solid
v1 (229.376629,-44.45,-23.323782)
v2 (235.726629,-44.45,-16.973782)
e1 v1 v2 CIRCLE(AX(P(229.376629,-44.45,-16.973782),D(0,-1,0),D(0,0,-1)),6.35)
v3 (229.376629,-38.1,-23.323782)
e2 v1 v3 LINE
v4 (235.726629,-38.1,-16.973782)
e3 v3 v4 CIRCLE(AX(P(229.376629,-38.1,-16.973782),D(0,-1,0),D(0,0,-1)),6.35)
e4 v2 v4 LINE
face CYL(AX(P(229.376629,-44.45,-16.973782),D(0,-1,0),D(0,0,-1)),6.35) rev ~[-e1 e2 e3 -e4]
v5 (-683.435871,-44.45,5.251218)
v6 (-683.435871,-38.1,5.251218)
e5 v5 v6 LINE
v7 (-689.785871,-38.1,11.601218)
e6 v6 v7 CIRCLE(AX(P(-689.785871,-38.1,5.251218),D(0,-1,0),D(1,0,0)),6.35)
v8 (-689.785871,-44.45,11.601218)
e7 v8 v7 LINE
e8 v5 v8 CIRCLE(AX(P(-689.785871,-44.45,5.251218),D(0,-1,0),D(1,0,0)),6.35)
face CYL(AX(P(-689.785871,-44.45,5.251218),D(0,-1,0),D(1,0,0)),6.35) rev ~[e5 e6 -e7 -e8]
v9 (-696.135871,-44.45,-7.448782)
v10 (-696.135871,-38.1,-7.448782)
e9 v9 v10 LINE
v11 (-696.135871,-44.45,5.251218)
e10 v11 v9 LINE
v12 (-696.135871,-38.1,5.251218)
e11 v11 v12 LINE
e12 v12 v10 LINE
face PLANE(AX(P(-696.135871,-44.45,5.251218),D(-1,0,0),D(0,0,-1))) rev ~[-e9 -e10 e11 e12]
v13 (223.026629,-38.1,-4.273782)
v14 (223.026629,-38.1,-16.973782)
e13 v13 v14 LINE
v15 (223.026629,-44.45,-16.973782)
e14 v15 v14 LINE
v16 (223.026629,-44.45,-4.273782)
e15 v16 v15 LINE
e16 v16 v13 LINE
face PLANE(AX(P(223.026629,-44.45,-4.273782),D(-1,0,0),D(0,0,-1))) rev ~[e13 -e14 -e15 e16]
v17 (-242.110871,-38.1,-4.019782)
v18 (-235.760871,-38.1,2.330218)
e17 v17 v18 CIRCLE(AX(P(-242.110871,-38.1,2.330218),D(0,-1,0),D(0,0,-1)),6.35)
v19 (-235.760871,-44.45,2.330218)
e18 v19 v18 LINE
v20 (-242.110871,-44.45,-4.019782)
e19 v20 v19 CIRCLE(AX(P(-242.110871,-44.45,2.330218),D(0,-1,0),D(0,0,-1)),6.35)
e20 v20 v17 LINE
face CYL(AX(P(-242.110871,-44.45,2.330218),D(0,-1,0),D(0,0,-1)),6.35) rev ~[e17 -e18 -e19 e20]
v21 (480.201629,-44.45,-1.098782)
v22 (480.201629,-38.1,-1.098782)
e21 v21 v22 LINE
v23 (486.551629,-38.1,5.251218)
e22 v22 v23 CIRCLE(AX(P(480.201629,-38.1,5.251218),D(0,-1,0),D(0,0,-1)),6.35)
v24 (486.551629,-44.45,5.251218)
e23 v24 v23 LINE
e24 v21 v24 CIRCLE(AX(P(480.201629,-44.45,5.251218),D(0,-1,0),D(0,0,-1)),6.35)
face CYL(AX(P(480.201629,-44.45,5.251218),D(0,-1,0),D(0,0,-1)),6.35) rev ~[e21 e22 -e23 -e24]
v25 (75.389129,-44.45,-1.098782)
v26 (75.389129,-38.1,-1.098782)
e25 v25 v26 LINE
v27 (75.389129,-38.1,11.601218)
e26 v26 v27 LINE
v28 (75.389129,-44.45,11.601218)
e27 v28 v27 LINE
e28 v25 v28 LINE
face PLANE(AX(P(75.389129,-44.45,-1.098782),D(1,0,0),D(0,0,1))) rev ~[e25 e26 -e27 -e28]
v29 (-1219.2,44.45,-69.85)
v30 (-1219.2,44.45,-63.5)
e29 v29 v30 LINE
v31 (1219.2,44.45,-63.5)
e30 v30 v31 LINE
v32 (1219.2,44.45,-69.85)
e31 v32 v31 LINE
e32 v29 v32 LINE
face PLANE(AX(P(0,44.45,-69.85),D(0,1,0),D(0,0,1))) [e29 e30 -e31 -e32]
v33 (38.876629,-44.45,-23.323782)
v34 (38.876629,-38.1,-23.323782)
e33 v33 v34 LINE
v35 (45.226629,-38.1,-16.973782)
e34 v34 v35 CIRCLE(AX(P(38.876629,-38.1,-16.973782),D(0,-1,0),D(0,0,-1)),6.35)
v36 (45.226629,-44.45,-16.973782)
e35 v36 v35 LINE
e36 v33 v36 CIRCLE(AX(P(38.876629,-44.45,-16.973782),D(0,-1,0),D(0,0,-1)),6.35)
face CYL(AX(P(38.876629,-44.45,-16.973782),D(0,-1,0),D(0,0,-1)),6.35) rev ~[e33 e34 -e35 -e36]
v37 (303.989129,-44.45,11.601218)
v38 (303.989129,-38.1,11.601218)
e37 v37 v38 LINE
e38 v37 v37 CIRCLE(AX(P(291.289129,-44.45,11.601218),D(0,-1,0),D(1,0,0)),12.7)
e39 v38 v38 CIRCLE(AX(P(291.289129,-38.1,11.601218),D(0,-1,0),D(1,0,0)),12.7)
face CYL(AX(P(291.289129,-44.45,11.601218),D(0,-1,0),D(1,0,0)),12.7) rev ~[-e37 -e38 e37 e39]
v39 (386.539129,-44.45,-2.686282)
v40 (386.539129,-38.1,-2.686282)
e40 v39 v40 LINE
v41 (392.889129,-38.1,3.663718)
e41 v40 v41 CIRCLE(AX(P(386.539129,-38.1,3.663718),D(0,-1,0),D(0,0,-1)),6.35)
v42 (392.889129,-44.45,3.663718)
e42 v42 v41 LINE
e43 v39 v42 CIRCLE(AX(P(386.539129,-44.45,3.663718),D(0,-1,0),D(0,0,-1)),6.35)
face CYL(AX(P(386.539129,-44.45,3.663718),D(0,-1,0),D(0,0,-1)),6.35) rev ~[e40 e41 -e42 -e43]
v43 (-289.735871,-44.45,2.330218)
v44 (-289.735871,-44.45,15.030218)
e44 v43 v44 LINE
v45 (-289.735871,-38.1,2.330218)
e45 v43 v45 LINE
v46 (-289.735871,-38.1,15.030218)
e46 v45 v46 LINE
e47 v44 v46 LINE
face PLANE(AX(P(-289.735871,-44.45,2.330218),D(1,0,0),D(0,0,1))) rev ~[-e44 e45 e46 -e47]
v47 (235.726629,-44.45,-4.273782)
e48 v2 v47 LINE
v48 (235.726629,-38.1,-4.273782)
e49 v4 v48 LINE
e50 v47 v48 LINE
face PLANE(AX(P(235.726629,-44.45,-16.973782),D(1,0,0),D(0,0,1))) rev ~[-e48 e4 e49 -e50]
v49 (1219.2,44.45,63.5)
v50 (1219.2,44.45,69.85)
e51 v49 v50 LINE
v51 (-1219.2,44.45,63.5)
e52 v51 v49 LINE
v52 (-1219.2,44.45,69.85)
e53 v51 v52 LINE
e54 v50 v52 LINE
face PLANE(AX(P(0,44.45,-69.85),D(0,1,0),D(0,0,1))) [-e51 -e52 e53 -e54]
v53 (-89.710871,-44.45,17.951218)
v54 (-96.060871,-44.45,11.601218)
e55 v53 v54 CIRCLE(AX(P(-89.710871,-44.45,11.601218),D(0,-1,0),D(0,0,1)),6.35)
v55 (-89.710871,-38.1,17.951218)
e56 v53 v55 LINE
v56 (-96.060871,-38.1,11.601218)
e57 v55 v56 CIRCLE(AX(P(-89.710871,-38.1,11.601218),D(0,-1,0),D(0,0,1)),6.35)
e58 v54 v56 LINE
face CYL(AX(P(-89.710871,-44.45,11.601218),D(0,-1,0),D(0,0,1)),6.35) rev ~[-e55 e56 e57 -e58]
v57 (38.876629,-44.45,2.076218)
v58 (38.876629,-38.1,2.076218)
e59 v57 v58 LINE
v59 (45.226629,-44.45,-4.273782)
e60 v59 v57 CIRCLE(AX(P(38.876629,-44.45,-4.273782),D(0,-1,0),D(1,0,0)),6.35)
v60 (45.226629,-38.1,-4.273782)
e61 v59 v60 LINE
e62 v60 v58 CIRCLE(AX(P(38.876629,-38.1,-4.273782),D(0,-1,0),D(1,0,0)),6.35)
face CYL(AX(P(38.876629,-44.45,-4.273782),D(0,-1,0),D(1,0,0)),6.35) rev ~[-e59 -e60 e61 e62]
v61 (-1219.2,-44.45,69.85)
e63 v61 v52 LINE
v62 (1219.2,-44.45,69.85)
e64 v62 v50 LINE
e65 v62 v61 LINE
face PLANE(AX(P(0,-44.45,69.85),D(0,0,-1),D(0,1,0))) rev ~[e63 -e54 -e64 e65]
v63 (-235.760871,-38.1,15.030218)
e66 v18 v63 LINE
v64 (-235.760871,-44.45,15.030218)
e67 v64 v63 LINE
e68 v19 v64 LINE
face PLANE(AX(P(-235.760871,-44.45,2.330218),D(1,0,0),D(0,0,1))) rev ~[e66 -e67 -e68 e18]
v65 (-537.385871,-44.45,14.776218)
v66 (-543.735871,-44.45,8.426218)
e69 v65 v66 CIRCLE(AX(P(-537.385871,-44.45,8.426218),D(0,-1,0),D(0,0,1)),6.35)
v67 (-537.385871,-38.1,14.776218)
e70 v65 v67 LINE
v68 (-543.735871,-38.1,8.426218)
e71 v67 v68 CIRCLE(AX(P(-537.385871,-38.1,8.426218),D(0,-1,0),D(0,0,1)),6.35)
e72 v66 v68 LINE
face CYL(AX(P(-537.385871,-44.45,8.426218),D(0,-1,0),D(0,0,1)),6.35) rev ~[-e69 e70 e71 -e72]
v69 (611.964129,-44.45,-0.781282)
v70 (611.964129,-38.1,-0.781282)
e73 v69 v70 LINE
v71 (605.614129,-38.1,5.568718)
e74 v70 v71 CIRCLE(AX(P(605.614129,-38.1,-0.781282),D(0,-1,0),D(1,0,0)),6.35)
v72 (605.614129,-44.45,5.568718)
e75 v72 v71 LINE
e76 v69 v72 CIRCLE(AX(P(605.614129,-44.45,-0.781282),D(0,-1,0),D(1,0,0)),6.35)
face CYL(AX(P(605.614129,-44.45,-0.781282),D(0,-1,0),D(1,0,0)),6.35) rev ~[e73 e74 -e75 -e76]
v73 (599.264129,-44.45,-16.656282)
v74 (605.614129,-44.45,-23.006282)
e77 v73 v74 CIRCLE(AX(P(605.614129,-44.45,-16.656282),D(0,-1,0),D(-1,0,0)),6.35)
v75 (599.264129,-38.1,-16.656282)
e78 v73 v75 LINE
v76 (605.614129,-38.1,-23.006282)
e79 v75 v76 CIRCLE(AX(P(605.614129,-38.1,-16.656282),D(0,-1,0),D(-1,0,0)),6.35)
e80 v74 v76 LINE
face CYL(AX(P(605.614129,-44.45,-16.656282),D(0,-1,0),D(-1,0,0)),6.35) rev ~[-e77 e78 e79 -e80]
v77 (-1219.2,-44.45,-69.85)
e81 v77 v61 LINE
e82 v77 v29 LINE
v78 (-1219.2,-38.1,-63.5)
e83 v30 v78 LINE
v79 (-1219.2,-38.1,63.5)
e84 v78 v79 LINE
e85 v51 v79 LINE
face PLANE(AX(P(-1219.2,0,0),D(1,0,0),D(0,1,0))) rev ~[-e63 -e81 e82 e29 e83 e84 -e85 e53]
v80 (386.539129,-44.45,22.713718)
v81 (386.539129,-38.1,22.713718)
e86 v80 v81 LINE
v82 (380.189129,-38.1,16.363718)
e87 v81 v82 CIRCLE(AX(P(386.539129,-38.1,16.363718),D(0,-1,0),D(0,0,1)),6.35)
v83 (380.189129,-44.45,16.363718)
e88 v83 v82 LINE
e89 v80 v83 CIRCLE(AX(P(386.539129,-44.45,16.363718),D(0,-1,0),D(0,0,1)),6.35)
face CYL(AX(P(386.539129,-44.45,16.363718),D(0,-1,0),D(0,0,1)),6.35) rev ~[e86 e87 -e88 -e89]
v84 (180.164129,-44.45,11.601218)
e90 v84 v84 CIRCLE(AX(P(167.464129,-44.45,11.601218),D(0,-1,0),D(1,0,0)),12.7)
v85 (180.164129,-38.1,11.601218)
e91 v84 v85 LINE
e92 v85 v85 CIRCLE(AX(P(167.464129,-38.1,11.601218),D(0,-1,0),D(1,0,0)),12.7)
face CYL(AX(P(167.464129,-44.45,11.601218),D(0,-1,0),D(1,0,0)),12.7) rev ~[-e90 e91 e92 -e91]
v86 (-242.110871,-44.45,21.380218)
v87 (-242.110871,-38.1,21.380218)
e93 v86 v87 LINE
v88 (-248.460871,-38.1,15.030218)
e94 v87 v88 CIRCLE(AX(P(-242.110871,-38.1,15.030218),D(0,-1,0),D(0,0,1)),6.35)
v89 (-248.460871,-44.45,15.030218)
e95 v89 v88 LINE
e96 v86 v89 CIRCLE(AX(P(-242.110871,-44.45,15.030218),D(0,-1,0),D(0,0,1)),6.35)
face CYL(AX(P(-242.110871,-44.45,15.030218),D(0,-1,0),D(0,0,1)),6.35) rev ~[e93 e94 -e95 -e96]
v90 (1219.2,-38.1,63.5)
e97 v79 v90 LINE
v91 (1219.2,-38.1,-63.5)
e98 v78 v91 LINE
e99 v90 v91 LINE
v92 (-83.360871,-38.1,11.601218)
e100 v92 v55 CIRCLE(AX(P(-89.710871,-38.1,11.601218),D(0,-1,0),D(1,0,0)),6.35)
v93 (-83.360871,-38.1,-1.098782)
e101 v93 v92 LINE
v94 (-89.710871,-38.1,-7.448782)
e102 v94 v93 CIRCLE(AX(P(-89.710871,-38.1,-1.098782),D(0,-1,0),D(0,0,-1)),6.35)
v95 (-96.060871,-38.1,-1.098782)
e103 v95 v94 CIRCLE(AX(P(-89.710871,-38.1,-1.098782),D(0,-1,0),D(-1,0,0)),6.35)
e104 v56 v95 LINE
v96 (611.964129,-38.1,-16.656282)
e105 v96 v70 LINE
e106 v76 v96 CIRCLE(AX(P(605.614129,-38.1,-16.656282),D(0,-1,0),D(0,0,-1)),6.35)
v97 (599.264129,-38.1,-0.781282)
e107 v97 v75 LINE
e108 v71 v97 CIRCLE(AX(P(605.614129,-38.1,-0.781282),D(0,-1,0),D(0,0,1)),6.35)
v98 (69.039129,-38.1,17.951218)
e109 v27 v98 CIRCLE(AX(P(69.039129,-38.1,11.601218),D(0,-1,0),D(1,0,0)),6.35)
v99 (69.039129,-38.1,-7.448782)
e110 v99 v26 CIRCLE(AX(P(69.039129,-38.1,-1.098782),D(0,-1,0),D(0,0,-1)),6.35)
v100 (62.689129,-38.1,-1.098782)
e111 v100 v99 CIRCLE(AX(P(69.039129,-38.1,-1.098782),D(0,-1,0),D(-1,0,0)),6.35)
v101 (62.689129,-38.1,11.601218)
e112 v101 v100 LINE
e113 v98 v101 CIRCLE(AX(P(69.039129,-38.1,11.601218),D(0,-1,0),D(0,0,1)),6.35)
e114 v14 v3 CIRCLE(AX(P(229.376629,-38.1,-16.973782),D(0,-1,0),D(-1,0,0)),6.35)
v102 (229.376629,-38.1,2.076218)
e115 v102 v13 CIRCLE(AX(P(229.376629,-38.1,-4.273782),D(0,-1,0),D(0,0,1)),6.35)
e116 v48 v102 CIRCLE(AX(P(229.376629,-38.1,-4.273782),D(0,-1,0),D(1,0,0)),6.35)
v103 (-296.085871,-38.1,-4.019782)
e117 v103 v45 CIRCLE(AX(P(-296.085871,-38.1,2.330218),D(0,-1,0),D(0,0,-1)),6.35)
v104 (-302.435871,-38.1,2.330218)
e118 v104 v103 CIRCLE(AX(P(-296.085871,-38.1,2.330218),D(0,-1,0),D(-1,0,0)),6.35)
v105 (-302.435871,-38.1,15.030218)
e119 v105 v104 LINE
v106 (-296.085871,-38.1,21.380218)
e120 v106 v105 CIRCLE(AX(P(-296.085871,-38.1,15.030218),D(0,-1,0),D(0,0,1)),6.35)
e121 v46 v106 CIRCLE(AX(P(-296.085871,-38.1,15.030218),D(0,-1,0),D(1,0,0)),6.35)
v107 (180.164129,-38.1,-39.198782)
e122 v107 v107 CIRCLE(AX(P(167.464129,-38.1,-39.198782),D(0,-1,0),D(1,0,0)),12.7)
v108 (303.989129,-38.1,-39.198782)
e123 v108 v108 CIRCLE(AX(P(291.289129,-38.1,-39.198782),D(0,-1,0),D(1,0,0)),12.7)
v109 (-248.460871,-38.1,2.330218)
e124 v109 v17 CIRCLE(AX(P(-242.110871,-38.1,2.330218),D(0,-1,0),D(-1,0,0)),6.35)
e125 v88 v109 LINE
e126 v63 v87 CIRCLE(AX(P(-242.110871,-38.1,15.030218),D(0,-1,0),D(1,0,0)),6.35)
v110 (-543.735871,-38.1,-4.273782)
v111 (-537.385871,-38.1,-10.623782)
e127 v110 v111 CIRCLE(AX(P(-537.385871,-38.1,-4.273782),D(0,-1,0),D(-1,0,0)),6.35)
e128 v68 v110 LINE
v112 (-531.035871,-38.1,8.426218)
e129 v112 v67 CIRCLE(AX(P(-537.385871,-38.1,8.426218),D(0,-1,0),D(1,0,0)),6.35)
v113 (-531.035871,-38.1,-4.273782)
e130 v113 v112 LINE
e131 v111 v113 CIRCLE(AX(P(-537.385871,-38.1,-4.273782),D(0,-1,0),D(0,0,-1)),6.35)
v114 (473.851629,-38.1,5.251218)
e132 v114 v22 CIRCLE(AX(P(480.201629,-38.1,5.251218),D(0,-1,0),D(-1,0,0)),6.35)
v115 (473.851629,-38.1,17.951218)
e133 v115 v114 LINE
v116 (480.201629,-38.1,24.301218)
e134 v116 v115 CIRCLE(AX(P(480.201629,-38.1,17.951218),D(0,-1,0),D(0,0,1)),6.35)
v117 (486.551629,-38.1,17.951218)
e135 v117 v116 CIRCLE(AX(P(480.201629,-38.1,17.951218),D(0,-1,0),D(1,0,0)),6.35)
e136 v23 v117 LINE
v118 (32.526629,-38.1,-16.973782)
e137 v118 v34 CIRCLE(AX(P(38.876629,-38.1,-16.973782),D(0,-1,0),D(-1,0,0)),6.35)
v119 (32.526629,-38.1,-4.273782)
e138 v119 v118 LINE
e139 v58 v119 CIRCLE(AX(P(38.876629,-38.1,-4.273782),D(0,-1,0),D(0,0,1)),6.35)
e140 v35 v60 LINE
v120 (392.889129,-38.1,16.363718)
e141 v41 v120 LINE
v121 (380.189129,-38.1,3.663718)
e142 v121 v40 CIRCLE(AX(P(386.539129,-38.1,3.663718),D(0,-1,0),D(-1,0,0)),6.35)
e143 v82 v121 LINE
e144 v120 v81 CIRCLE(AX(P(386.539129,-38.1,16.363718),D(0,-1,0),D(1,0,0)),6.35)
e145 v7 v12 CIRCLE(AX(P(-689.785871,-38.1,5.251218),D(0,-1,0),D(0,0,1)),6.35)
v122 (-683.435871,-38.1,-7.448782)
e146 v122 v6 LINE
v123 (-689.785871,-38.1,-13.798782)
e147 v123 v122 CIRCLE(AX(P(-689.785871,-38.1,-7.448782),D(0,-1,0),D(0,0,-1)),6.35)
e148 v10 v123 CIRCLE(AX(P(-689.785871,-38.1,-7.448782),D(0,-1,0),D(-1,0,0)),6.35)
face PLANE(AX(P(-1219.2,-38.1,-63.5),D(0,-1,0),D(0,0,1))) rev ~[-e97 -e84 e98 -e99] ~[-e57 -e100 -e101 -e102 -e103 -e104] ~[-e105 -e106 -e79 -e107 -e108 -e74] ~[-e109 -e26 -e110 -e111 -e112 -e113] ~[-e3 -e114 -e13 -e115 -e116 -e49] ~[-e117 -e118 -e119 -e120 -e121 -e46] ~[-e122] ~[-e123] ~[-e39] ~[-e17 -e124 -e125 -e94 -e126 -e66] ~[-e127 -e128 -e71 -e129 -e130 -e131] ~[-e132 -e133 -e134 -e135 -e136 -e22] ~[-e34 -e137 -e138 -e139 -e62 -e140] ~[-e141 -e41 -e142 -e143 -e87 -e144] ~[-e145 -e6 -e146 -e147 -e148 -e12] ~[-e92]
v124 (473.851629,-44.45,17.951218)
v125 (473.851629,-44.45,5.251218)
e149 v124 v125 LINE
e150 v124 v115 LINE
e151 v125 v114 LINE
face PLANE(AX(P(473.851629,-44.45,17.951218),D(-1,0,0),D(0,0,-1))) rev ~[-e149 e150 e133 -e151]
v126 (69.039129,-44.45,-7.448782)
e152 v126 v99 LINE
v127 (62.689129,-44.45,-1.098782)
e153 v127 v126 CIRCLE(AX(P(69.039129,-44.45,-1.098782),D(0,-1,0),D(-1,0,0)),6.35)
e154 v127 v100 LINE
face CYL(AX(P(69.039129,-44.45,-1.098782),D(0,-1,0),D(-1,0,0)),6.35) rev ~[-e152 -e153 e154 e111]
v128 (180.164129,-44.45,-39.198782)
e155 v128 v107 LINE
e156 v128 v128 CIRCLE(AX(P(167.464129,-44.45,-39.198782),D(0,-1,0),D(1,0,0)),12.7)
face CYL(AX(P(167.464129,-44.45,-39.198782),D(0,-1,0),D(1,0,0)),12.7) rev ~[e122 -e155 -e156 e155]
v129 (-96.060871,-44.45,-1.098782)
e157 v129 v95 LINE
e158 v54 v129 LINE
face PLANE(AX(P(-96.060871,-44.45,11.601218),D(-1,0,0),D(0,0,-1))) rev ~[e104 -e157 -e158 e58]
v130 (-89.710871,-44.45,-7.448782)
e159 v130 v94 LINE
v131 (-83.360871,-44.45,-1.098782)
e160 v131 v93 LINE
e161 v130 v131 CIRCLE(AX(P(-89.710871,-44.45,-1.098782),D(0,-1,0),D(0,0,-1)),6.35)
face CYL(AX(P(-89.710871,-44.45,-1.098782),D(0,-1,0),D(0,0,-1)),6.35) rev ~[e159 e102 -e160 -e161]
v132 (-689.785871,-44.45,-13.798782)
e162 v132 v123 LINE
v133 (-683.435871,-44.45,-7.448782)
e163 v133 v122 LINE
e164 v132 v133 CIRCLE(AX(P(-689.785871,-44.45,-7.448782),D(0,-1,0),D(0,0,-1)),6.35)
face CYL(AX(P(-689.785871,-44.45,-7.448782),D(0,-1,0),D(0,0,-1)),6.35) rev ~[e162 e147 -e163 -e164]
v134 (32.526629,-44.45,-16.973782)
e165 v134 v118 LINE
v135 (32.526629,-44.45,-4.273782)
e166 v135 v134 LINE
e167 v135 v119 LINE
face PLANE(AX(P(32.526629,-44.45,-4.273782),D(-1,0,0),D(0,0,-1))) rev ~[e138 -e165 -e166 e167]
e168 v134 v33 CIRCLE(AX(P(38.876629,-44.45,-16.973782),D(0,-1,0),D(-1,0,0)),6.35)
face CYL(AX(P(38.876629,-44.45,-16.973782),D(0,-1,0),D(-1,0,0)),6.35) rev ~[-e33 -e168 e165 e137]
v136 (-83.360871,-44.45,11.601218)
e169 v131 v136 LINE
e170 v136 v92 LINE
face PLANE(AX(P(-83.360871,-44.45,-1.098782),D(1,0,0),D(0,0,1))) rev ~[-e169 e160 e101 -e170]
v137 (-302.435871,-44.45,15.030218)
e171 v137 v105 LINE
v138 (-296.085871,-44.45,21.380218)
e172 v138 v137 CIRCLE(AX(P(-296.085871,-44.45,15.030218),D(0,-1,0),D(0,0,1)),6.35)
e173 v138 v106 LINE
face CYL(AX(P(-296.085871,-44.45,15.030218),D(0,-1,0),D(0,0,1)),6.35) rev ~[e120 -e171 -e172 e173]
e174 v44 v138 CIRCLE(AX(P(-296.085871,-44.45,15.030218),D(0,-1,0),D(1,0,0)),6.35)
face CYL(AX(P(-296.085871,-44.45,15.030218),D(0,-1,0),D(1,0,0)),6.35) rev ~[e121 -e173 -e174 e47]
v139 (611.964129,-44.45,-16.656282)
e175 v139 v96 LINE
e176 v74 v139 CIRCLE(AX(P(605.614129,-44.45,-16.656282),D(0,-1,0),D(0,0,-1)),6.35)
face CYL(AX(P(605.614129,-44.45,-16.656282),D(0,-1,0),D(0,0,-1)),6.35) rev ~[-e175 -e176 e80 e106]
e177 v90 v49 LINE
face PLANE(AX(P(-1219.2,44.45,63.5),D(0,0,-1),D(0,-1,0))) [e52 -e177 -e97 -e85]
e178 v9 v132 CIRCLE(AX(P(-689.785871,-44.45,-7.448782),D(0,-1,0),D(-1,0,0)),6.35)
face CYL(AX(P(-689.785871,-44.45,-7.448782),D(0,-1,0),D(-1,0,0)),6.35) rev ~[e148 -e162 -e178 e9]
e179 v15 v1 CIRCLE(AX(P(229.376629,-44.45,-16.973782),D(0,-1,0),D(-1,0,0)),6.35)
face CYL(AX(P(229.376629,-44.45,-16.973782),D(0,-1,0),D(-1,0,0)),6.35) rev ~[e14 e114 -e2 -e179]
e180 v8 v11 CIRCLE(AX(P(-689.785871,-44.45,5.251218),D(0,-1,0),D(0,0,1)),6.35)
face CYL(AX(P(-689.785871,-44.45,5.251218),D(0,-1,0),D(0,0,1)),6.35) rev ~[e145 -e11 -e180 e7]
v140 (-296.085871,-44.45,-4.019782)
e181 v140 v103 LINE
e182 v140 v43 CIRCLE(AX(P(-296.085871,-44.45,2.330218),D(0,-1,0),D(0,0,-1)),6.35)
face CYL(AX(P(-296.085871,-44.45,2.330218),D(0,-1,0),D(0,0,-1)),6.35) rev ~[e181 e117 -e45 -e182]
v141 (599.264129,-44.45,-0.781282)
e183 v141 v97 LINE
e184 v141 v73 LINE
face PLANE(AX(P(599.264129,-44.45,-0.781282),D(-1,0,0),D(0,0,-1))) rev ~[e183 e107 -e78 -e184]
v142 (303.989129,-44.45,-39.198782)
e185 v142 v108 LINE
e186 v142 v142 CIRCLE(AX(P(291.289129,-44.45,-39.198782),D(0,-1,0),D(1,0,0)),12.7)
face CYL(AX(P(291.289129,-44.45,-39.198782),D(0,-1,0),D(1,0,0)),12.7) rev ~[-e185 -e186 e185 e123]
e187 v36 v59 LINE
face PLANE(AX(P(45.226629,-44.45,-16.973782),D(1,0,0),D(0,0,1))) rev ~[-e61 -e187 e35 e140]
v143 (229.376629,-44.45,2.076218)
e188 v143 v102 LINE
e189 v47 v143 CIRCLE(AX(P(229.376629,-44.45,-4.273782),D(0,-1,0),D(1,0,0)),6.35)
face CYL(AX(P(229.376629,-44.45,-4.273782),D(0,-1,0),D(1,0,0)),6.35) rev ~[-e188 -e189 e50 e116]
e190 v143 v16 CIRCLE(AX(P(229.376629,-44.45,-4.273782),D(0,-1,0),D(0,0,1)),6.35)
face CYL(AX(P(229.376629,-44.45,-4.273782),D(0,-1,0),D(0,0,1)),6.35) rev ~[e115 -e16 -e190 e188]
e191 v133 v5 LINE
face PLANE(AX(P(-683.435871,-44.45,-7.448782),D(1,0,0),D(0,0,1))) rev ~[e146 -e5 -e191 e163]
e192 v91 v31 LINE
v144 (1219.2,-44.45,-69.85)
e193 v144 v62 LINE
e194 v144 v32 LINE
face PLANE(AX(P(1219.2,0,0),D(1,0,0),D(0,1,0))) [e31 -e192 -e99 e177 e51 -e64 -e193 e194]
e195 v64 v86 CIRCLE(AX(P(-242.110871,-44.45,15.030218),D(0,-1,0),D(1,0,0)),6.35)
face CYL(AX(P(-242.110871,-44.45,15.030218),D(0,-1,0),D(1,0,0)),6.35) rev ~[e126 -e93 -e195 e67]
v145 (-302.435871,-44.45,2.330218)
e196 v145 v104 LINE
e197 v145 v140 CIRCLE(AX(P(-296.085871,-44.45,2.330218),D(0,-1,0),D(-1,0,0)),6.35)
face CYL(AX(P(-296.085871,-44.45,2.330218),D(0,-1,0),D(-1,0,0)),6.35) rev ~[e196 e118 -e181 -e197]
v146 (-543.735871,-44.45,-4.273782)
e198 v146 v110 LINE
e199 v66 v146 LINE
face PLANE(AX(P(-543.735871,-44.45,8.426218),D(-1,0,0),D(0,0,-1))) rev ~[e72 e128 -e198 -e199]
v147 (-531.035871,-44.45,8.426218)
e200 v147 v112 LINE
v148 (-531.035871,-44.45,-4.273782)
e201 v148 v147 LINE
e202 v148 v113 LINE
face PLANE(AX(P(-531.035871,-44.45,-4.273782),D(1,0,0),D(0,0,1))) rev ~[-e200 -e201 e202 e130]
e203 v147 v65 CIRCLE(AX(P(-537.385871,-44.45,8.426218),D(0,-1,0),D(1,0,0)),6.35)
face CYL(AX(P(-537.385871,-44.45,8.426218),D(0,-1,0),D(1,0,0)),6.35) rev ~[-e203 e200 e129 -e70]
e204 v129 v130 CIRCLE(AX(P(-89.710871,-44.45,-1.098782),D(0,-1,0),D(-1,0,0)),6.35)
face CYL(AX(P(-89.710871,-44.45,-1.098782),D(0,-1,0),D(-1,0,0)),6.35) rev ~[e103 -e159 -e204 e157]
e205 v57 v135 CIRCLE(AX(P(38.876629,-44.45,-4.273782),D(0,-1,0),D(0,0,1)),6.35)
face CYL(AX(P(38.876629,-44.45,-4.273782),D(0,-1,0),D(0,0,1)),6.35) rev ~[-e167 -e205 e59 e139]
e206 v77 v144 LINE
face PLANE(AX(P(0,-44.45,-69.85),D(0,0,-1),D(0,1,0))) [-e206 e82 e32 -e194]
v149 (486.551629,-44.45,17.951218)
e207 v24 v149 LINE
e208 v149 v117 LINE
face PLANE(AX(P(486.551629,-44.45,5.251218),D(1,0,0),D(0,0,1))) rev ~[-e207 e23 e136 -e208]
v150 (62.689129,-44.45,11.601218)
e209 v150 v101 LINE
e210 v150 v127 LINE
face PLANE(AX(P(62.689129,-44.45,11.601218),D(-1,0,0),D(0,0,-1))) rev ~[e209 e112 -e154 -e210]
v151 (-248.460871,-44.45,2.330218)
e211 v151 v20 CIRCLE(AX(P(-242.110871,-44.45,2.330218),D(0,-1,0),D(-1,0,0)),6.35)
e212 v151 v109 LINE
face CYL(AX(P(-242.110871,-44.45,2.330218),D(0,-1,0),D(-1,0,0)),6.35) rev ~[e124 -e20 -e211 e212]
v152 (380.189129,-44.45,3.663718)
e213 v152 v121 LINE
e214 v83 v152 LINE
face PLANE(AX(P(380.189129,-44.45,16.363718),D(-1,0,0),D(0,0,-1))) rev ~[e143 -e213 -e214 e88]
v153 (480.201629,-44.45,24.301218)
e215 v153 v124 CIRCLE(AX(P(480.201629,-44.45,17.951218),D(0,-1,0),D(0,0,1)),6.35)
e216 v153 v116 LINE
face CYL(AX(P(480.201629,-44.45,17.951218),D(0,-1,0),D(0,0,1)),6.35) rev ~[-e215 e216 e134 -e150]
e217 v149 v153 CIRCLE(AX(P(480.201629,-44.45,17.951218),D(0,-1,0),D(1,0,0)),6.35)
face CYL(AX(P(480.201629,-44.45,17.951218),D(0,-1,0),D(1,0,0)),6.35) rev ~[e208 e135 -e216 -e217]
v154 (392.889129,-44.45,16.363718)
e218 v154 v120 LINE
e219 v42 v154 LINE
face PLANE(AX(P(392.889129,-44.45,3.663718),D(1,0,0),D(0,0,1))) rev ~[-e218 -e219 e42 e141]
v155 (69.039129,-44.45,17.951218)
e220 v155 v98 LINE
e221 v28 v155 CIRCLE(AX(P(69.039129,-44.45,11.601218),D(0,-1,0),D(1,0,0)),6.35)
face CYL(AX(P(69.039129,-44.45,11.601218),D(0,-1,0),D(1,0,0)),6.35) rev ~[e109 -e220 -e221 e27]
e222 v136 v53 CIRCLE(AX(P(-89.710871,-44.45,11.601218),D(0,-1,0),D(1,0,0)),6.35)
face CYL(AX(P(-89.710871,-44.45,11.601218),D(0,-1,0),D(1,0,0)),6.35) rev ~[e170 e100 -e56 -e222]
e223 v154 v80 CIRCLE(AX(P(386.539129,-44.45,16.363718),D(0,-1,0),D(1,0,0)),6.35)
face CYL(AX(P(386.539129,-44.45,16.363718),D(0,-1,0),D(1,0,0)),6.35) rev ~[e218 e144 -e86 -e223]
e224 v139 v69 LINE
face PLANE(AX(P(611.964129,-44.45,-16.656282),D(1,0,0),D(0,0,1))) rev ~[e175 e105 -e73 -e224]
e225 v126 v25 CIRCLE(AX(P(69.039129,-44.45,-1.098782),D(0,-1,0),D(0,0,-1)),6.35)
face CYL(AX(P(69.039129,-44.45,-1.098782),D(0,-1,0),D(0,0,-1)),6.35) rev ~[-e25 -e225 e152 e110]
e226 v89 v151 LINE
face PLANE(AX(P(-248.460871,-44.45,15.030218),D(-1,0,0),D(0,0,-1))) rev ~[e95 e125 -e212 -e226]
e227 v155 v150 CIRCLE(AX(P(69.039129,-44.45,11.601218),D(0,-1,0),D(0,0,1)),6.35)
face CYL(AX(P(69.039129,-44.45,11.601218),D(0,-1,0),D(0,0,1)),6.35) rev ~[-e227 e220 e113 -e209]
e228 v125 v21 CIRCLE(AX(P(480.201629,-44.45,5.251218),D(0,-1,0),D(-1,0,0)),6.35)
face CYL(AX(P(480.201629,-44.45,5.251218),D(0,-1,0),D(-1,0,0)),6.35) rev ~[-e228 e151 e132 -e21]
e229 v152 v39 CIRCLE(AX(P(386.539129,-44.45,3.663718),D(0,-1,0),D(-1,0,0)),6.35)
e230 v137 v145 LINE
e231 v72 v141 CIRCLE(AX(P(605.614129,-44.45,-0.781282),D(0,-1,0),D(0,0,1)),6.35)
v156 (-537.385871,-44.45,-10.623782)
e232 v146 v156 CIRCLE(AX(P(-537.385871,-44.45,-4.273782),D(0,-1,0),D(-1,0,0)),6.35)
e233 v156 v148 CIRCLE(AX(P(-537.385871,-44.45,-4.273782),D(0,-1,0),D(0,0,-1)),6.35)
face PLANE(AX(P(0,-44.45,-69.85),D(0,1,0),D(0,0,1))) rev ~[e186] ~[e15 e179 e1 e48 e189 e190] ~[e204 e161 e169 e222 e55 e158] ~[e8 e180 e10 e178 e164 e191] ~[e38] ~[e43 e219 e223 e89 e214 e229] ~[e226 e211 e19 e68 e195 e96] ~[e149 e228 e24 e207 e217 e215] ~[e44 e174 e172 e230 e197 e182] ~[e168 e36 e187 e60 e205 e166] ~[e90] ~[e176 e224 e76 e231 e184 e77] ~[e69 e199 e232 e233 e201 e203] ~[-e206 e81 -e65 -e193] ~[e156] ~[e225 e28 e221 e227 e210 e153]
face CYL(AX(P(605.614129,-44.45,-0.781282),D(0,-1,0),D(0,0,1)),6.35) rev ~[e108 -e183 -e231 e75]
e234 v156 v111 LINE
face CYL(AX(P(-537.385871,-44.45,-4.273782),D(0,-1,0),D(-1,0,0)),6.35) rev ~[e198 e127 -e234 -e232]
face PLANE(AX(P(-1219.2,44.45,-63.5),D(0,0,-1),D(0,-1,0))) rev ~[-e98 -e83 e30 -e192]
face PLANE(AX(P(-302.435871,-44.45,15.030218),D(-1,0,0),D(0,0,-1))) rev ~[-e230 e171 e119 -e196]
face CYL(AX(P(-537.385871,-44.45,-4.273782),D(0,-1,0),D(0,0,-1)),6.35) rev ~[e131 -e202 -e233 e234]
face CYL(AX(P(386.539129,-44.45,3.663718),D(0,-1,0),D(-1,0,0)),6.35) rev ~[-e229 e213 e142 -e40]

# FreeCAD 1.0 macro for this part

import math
import FreeCAD as App
import Part
import Sketcher
Q = App.Units.Quantity

doc = App.newDocument("Part")
body = doc.addObject("PartDesign::Body", "Body")

sketch1 = body.newObject("Sketcher::SketchObject", "Sketch")
sketch1.AttachmentSupport = (doc.getObject("YZ_Plane"), [""])
sketch1.MapMode = "FlatFace"
sketch1.addGeometry(Part.LineSegment(App.Vector(-44, 70, 0), App.Vector(-44, -70, 0)), False)
sketch1.addGeometry(Part.LineSegment(App.Vector(-44, -70, 0), App.Vector(44, -70, 0)), False)
sketch1.addGeometry(Part.LineSegment(App.Vector(44, -70, 0), App.Vector(44, 70, 0)), False)
sketch1.addGeometry(Part.LineSegment(App.Vector(44, 70, 0), App.Vector(-44, 70, 0)), False)
sketch1.addConstraint(Sketcher.Constraint("Coincident", 0, 2, 1, 1))
sketch1.addConstraint(Sketcher.Constraint("Coincident", 1, 2, 2, 1))
sketch1.addConstraint(Sketcher.Constraint("Coincident", 2, 2, 3, 1))
sketch1.addConstraint(Sketcher.Constraint("Coincident", 3, 2, 0, 1))
sketch1.addConstraint(Sketcher.Constraint("Vertical", 0))
sketch1.addConstraint(Sketcher.Constraint("Horizontal", 1))
sketch1.addConstraint(Sketcher.Constraint("Vertical", 2))
sketch1.addConstraint(Sketcher.Constraint("Horizontal", 3))
sketch1.addConstraint(Sketcher.Constraint("Symmetric", 0, 2, 2, 2, -1, 1))
sketch1.addConstraint(Sketcher.Constraint("DistanceX", 1, 1, 1, 2, Q("3.5 in")))
sketch1.addConstraint(Sketcher.Constraint("DistanceY", 0, 2, 0, 1, Q("5.5 in")))
pad1 = body.newObject("PartDesign::Pad", "Pad")
pad1.Profile = sketch1
pad1.Length = Q("96 in")
pad1.Midplane = True

sketch2 = body.newObject("Sketcher::SketchObject", "Sketch001")
sketch2.AttachmentSupport = (doc.getObject("YZ_Plane"), [""])
sketch2.MapMode = "FlatFace"
sketch2.AttachmentOffset = App.Placement(App.Vector(0, 0, -48 * 25.4), App.Rotation())
sketch2.addGeometry(Part.LineSegment(App.Vector(44, 64, 0), App.Vector(44, -64, 0)), False)
sketch2.addGeometry(Part.LineSegment(App.Vector(44, -64, 0), App.Vector(-38, -64, 0)), False)
sketch2.addGeometry(Part.LineSegment(App.Vector(-38, -64, 0), App.Vector(-38, 64, 0)), False)
sketch2.addGeometry(Part.LineSegment(App.Vector(-38, 64, 0), App.Vector(44, 64, 0)), False)
sketch2.addConstraint(Sketcher.Constraint("Coincident", 0, 2, 1, 1))
sketch2.addConstraint(Sketcher.Constraint("Coincident", 1, 2, 2, 1))
sketch2.addConstraint(Sketcher.Constraint("Coincident", 2, 2, 3, 1))
sketch2.addConstraint(Sketcher.Constraint("Coincident", 3, 2, 0, 1))
sketch2.addConstraint(Sketcher.Constraint("Vertical", 0))
sketch2.addConstraint(Sketcher.Constraint("Horizontal", 1))
sketch2.addConstraint(Sketcher.Constraint("Vertical", 2))
sketch2.addConstraint(Sketcher.Constraint("Horizontal", 3))
sketch2.addConstraint(Sketcher.Constraint("DistanceY", 0, 2, 0, 1, Q("5 in")))
sketch2.addConstraint(Sketcher.Constraint("DistanceX", 1, 2, 1, 1, Q("3.25 in")))
sketch2.addConstraint(Sketcher.Constraint("DistanceY", 0, 2, -1, 1, Q("2.5 in")))
sketch2.addConstraint(Sketcher.Constraint("DistanceX", 1, 2, -1, 1, Q("1.5 in")))
pocket1 = body.newObject("PartDesign::Pocket", "Pocket")
pocket1.Profile = sketch2
pocket1.Type = "ThroughAll"
pocket1.Reversed = True

sketch3 = body.newObject("Sketcher::SketchObject", "Sketch002")
sketch3.AttachmentSupport = (doc.getObject("XZ_Plane"), [""])
sketch3.MapMode = "FlatFace"
sketch3.AttachmentOffset = App.Placement(App.Vector(0, 0, 1.75 * 25.4), App.Rotation())
sketch3.addGeometry(Part.ArcOfCircle(Part.Circle(App.Vector(-690, 5, 0), App.Vector(0, 0, 1), 6), math.radians(90), math.radians(180)), False)
sketch3.addGeometry(Part.LineSegment(App.Vector(-696, 5, 0), App.Vector(-696, -7, 0)), False)
sketch3.addGeometry(Part.ArcOfCircle(Part.Circle(App.Vector(-690, -7, 0), App.Vector(0, 0, 1), 6), math.radians(180), math.radians(270)), False)
sketch3.addGeometry(Part.ArcOfCircle(Part.Circle(App.Vector(-690, -7, 0), App.Vector(0, 0, 1), 6), math.radians(-90), math.radians(0)), False)
sketch3.addGeometry(Part.LineSegment(App.Vector(-683, -7, 0), App.Vector(-683, 5, 0)), False)
sketch3.addGeometry(Part.ArcOfCircle(Part.Circle(App.Vector(-690, 5, 0), App.Vector(0, 0, 1), 6), math.radians(0), math.radians(90)), False)
sketch3.addGeometry(Part.ArcOfCircle(Part.Circle(App.Vector(-537, 8, 0), App.Vector(0, 0, 1), 6), math.radians(90), math.radians(180)), False)
sketch3.addGeometry(Part.LineSegment(App.Vector(-544, 8, 0), App.Vector(-544, -4, 0)), False)
sketch3.addGeometry(Part.ArcOfCircle(Part.Circle(App.Vector(-537, -4, 0), App.Vector(0, 0, 1), 6), math.radians(180), math.radians(270)), False)
sketch3.addGeometry(Part.ArcOfCircle(Part.Circle(App.Vector(-537, -4, 0), App.Vector(0, 0, 1), 6), math.radians(-90), math.radians(0)), False)
sketch3.addGeometry(Part.LineSegment(App.Vector(-531, -4, 0), App.Vector(-531, 8, 0)), False)
sketch3.addGeometry(Part.ArcOfCircle(Part.Circle(App.Vector(-537, 8, 0), App.Vector(0, 0, 1), 6), math.radians(0), math.radians(90)), False)
sketch3.addGeometry(Part.ArcOfCircle(Part.Circle(App.Vector(-296, 15, 0), App.Vector(0, 0, 1), 6), math.radians(90), math.radians(180)), False)
sketch3.addGeometry(Part.LineSegment(App.Vector(-302, 15, 0), App.Vector(-302, 2, 0)), False)
sketch3.addGeometry(Part.ArcOfCircle(Part.Circle(App.Vector(-296, 2, 0), App.Vector(0, 0, 1), 6), math.radians(180), math.radians(270)), False)
sketch3.addGeometry(Part.ArcOfCircle(Part.Circle(App.Vector(-296, 2, 0), App.Vector(0, 0, 1), 6), math.radians(-90), math.radians(0)), False)
sketch3.addGeometry(Part.LineSegment(App.Vector(-290, 2, 0), App.Vector(-290, 15, 0)), False)
sketch3.addGeometry(Part.ArcOfCircle(Part.Circle(App.Vector(-296, 15, 0), App.Vector(0, 0, 1), 6), math.radians(0), math.radians(90)), False)
sketch3.addGeometry(Part.ArcOfCircle(Part.Circle(App.Vector(-242, 15, 0), App.Vector(0, 0, 1), 6), math.radians(90), math.radians(180)), False)
sketch3.addGeometry(Part.LineSegment(App.Vector(-248, 15, 0), App.Vector(-248, 2, 0)), False)
sketch3.addGeometry(Part.ArcOfCircle(Part.Circle(App.Vector(-242, 2, 0), App.Vector(0, 0, 1), 6), math.radians(180), math.radians(270)), False)
sketch3.addGeometry(Part.ArcOfCircle(Part.Circle(App.Vector(-242, 2, 0), App.Vector(0, 0, 1), 6), math.radians(-90), math.radians(0)), False)
sketch3.addGeometry(Part.LineSegment(App.Vector(-236, 2, 0), App.Vector(-236, 15, 0)), False)
sketch3.addGeometry(Part.ArcOfCircle(Part.Circle(App.Vector(-242, 15, 0), App.Vector(0, 0, 1), 6), math.radians(0), math.radians(90)), False)
sketch3.addGeometry(Part.ArcOfCircle(Part.Circle(App.Vector(-90, 12, 0), App.Vector(0, 0, 1), 6), math.radians(90), math.radians(180)), False)
sketch3.addGeometry(Part.LineSegment(App.Vector(-96, 12, 0), App.Vector(-96, -1, 0)), False)
sketch3.addGeometry(Part.ArcOfCircle(Part.Circle(App.Vector(-90, -1, 0), App.Vector(0, 0, 1), 6), math.radians(180), math.radians(270)), False)
sketch3.addGeometry(Part.ArcOfCircle(Part.Circle(App.Vector(-90, -1, 0), App.Vector(0, 0, 1), 6), math.radians(-90), math.radians(0)), False)
sketch3.addGeometry(Part.LineSegment(App.Vector(-83, -1, 0), App.Vector(-83, 12, 0)), False)
sketch3.addGeometry(Part.ArcOfCircle(Part.Circle(App.Vector(-90, 12, 0), App.Vector(0, 0, 1), 6), math.radians(0), math.radians(90)), False)
sketch3.addGeometry(Part.ArcOfCircle(Part.Circle(App.Vector(39, -4, 0), App.Vector(0, 0, 1), 6), math.radians(90), math.radians(180)), False)
sketch3.addGeometry(Part.LineSegment(App.Vector(33, -4, 0), App.Vector(33, -17, 0)), False)
sketch3.addGeometry(Part.ArcOfCircle(Part.Circle(App.Vector(39, -17, 0), App.Vector(0, 0, 1), 6), math.radians(180), math.radians(270)), False)
sketch3.addGeometry(Part.ArcOfCircle(Part.Circle(App.Vector(39, -17, 0), App.Vector(0, 0, 1), 6), math.radians(-90), math.radians(0)), False)
sketch3.addGeometry(Part.LineSegment(App.Vector(45, -17, 0), App.Vector(45, -4, 0)), False)
sketch3.addGeometry(Part.ArcOfCircle(Part.Circle(App.Vector(39, -4, 0), App.Vector(0, 0, 1), 6), math.radians(0), math.radians(90)), False)
sketch3.addGeometry(Part.ArcOfCircle(Part.Circle(App.Vector(69, 12, 0), App.Vector(0, 0, 1), 6), math.radians(90), math.radians(180)), False)
sketch3.addGeometry(Part.LineSegment(App.Vector(63, 12, 0), App.Vector(63, -1, 0)), False)
sketch3.addGeometry(Part.ArcOfCircle(Part.Circle(App.Vector(69, -1, 0), App.Vector(0, 0, 1), 6), math.radians(180), math.radians(270)), False)
sketch3.addGeometry(Part.ArcOfCircle(Part.Circle(App.Vector(69, -1, 0), App.Vector(0, 0, 1), 6), math.radians(-90), math.radians(0)), False)
sketch3.addGeometry(Part.LineSegment(App.Vector(75, -1, 0), App.Vector(75, 12, 0)), False)
sketch3.addGeometry(Part.ArcOfCircle(Part.Circle(App.Vector(69, 12, 0), App.Vector(0, 0, 1), 6), math.radians(0), math.radians(90)), False)
sketch3.addGeometry(Part.ArcOfCircle(Part.Circle(App.Vector(229, -4, 0), App.Vector(0, 0, 1), 6), math.radians(90), math.radians(180)), False)
sketch3.addGeometry(Part.LineSegment(App.Vector(223, -4, 0), App.Vector(223, -17, 0)), False)
sketch3.addGeometry(Part.ArcOfCircle(Part.Circle(App.Vector(229, -17, 0), App.Vector(0, 0, 1), 6), math.radians(180), math.radians(270)), False)
sketch3.addGeometry(Part.ArcOfCircle(Part.Circle(App.Vector(229, -17, 0), App.Vector(0, 0, 1), 6), math.radians(-90), math.radians(0)), False)
sketch3.addGeometry(Part.LineSegment(App.Vector(236, -17, 0), App.Vector(236, -4, 0)), False)
sketch3.addGeometry(Part.ArcOfCircle(Part.Circle(App.Vector(229, -4, 0), App.Vector(0, 0, 1), 6), math.radians(0), math.radians(90)), False)
sketch3.addGeometry(Part.ArcOfCircle(Part.Circle(App.Vector(387, 16, 0), App.Vector(0, 0, 1), 6), math.radians(90), math.radians(180)), False)
sketch3.addGeometry(Part.LineSegment(App.Vector(380, 16, 0), App.Vector(380, 4, 0)), False)
sketch3.addGeometry(Part.ArcOfCircle(Part.Circle(App.Vector(387, 4, 0), App.Vector(0, 0, 1), 6), math.radians(180), math.radians(270)), False)
sketch3.addGeometry(Part.ArcOfCircle(Part.Circle(App.Vector(387, 4, 0), App.Vector(0, 0, 1), 6), math.radians(-90), math.radians(0)), False)
sketch3.addGeometry(Part.LineSegment(App.Vector(393, 4, 0), App.Vector(393, 16, 0)), False)
sketch3.addGeometry(Part.ArcOfCircle(Part.Circle(App.Vector(387, 16, 0), App.Vector(0, 0, 1), 6), math.radians(0), math.radians(90)), False)
sketch3.addGeometry(Part.ArcOfCircle(Part.Circle(App.Vector(480, 18, 0), App.Vector(0, 0, 1), 6), math.radians(90), math.radians(180)), False)
sketch3.addGeometry(Part.LineSegment(App.Vector(474, 18, 0), App.Vector(474, 5, 0)), False)
sketch3.addGeometry(Part.ArcOfCircle(Part.Circle(App.Vector(480, 5, 0), App.Vector(0, 0, 1), 6), math.radians(180), math.radians(270)), False)
sketch3.addGeometry(Part.ArcOfCircle(Part.Circle(App.Vector(480, 5, 0), App.Vector(0, 0, 1), 6), math.radians(-90), math.radians(0)), False)
sketch3.addGeometry(Part.LineSegment(App.Vector(487, 5, 0), App.Vector(487, 18, 0)), False)
sketch3.addGeometry(Part.ArcOfCircle(Part.Circle(App.Vector(480, 18, 0), App.Vector(0, 0, 1), 6), math.radians(0), math.radians(90)), False)
sketch3.addGeometry(Part.ArcOfCircle(Part.Circle(App.Vector(606, -1, 0), App.Vector(0, 0, 1), 6), math.radians(90), math.radians(180)), False)
sketch3.addGeometry(Part.LineSegment(App.Vector(599, -1, 0), App.Vector(599, -17, 0)), False)
sketch3.addGeometry(Part.ArcOfCircle(Part.Circle(App.Vector(606, -17, 0), App.Vector(0, 0, 1), 6), math.radians(180), math.radians(270)), False)
sketch3.addGeometry(Part.ArcOfCircle(Part.Circle(App.Vector(606, -17, 0), App.Vector(0, 0, 1), 6), math.radians(-90), math.radians(0)), False)
sketch3.addGeometry(Part.LineSegment(App.Vector(612, -17, 0), App.Vector(612, -1, 0)), False)
sketch3.addGeometry(Part.ArcOfCircle(Part.Circle(App.Vector(606, -1, 0), App.Vector(0, 0, 1), 6), math.radians(0), math.radians(90)), False)
sketch3.addGeometry(Part.Circle(App.Vector(167, 12, 0), App.Vector(0, 0, 1), 13), False)
sketch3.addGeometry(Part.Circle(App.Vector(291, 12, 0), App.Vector(0, 0, 1), 13), False)
sketch3.addGeometry(Part.Circle(App.Vector(291, -39, 0), App.Vector(0, 0, 1), 13), False)
sketch3.addGeometry(Part.Circle(App.Vector(167, -39, 0), App.Vector(0, 0, 1), 13), False)
sketch3.addConstraint(Sketcher.Constraint("Tangent", 0, 2, 1, 1))
sketch3.addConstraint(Sketcher.Constraint("Tangent", 1, 2, 2, 1))
sketch3.addConstraint(Sketcher.Constraint("Tangent", 2, 2, 3, 1))
sketch3.addConstraint(Sketcher.Constraint("Tangent", 3, 2, 4, 1))
sketch3.addConstraint(Sketcher.Constraint("Tangent", 4, 2, 5, 1))
sketch3.addConstraint(Sketcher.Constraint("Tangent", 5, 2, 0, 1))
sketch3.addConstraint(Sketcher.Constraint("Tangent", 6, 2, 7, 1))
sketch3.addConstraint(Sketcher.Constraint("Tangent", 7, 2, 8, 1))
sketch3.addConstraint(Sketcher.Constraint("Tangent", 8, 2, 9, 1))
sketch3.addConstraint(Sketcher.Constraint("Tangent", 9, 2, 10, 1))
sketch3.addConstraint(Sketcher.Constraint("Tangent", 10, 2, 11, 1))
sketch3.addConstraint(Sketcher.Constraint("Tangent", 11, 2, 6, 1))
sketch3.addConstraint(Sketcher.Constraint("Tangent", 12, 2, 13, 1))
sketch3.addConstraint(Sketcher.Constraint("Tangent", 13, 2, 14, 1))
sketch3.addConstraint(Sketcher.Constraint("Tangent", 14, 2, 15, 1))
sketch3.addConstraint(Sketcher.Constraint("Tangent", 15, 2, 16, 1))
sketch3.addConstraint(Sketcher.Constraint("Tangent", 16, 2, 17, 1))
sketch3.addConstraint(Sketcher.Constraint("Tangent", 17, 2, 12, 1))
sketch3.addConstraint(Sketcher.Constraint("Tangent", 18, 2, 19, 1))
sketch3.addConstraint(Sketcher.Constraint("Tangent", 19, 2, 20, 1))
sketch3.addConstraint(Sketcher.Constraint("Tangent", 20, 2, 21, 1))
sketch3.addConstraint(Sketcher.Constraint("Tangent", 21, 2, 22, 1))
sketch3.addConstraint(Sketcher.Constraint("Tangent", 22, 2, 23, 1))
sketch3.addConstraint(Sketcher.Constraint("Tangent", 23, 2, 18, 1))
sketch3.addConstraint(Sketcher.Constraint("Tangent", 24, 2, 25, 1))
sketch3.addConstraint(Sketcher.Constraint("Tangent", 25, 2, 26, 1))
sketch3.addConstraint(Sketcher.Constraint("Tangent", 26, 2, 27, 1))
sketch3.addConstraint(Sketcher.Constraint("Tangent", 27, 2, 28, 1))
sketch3.addConstraint(Sketcher.Constraint("Tangent", 28, 2, 29, 1))
sketch3.addConstraint(Sketcher.Constraint("Tangent", 29, 2, 24, 1))
sketch3.addConstraint(Sketcher.Constraint("Tangent", 30, 2, 31, 1))
sketch3.addConstraint(Sketcher.Constraint("Tangent", 31, 2, 32, 1))
sketch3.addConstraint(Sketcher.Constraint("Tangent", 32, 2, 33, 1))
sketch3.addConstraint(Sketcher.Constraint("Tangent", 33, 2, 34, 1))
sketch3.addConstraint(Sketcher.Constraint("Tangent", 34, 2, 35, 1))
sketch3.addConstraint(Sketcher.Constraint("Tangent", 35, 2, 30, 1))
sketch3.addConstraint(Sketcher.Constraint("Tangent", 36, 2, 37, 1))
sketch3.addConstraint(Sketcher.Constraint("Tangent", 37, 2, 38, 1))
sketch3.addConstraint(Sketcher.Constraint("Tangent", 38, 2, 39, 1))
sketch3.addConstraint(Sketcher.Constraint("Tangent", 39, 2, 40, 1))
sketch3.addConstraint(Sketcher.Constraint("Tangent", 40, 2, 41, 1))
sketch3.addConstraint(Sketcher.Constraint("Tangent", 41, 2, 36, 1))
sketch3.addConstraint(Sketcher.Constraint("Tangent", 42, 2, 43, 1))
sketch3.addConstraint(Sketcher.Constraint("Tangent", 43, 2, 44, 1))
sketch3.addConstraint(Sketcher.Constraint("Tangent", 44, 2, 45, 1))
sketch3.addConstraint(Sketcher.Constraint("Tangent", 45, 2, 46, 1))
sketch3.addConstraint(Sketcher.Constraint("Tangent", 46, 2, 47, 1))
sketch3.addConstraint(Sketcher.Constraint("Tangent", 47, 2, 42, 1))
sketch3.addConstraint(Sketcher.Constraint("Tangent", 48, 2, 49, 1))
sketch3.addConstraint(Sketcher.Constraint("Tangent", 49, 2, 50, 1))
sketch3.addConstraint(Sketcher.Constraint("Tangent", 50, 2, 51, 1))
sketch3.addConstraint(Sketcher.Constraint("Tangent", 51, 2, 52, 1))
sketch3.addConstraint(Sketcher.Constraint("Tangent", 52, 2, 53, 1))
sketch3.addConstraint(Sketcher.Constraint("Tangent", 53, 2, 48, 1))
sketch3.addConstraint(Sketcher.Constraint("Tangent", 54, 2, 55, 1))
sketch3.addConstraint(Sketcher.Constraint("Tangent", 55, 2, 56, 1))
sketch3.addConstraint(Sketcher.Constraint("Tangent", 56, 2, 57, 1))
sketch3.addConstraint(Sketcher.Constraint("Tangent", 57, 2, 58, 1))
sketch3.addConstraint(Sketcher.Constraint("Tangent", 58, 2, 59, 1))
sketch3.addConstraint(Sketcher.Constraint("Tangent", 59, 2, 54, 1))
sketch3.addConstraint(Sketcher.Constraint("Tangent", 60, 2, 61, 1))
sketch3.addConstraint(Sketcher.Constraint("Tangent", 61, 2, 62, 1))
sketch3.addConstraint(Sketcher.Constraint("Tangent", 62, 2, 63, 1))
sketch3.addConstraint(Sketcher.Constraint("Tangent", 63, 2, 64, 1))
sketch3.addConstraint(Sketcher.Constraint("Tangent", 64, 2, 65, 1))
sketch3.addConstraint(Sketcher.Constraint("Tangent", 65, 2, 60, 1))
sketch3.addConstraint(Sketcher.Constraint("Vertical", 1))
sketch3.addConstraint(Sketcher.Constraint("Vertical", 4))
sketch3.addConstraint(Sketcher.Constraint("Vertical", 7))
sketch3.addConstraint(Sketcher.Constraint("Vertical", 10))
sketch3.addConstraint(Sketcher.Constraint("Vertical", 13))
sketch3.addConstraint(Sketcher.Constraint("Vertical", 16))
sketch3.addConstraint(Sketcher.Constraint("Vertical", 19))
sketch3.addConstraint(Sketcher.Constraint("Vertical", 22))
sketch3.addConstraint(Sketcher.Constraint("Vertical", 25))
sketch3.addConstraint(Sketcher.Constraint("Vertical", 28))
sketch3.addConstraint(Sketcher.Constraint("Vertical", 31))
sketch3.addConstraint(Sketcher.Constraint("Vertical", 34))
sketch3.addConstraint(Sketcher.Constraint("Vertical", 37))
sketch3.addConstraint(Sketcher.Constraint("Vertical", 40))
sketch3.addConstraint(Sketcher.Constraint("Vertical", 43))
sketch3.addConstraint(Sketcher.Constraint("Vertical", 46))
sketch3.addConstraint(Sketcher.Constraint("Vertical", 49))
sketch3.addConstraint(Sketcher.Constraint("Vertical", 52))
sketch3.addConstraint(Sketcher.Constraint("Vertical", 55))
sketch3.addConstraint(Sketcher.Constraint("Vertical", 58))
sketch3.addConstraint(Sketcher.Constraint("Vertical", 61))
sketch3.addConstraint(Sketcher.Constraint("Vertical", 64))
sketch3.addConstraint(Sketcher.Constraint("Equal", 0, 2))
sketch3.addConstraint(Sketcher.Constraint("Equal", 2, 3))
sketch3.addConstraint(Sketcher.Constraint("Equal", 5, 6))
sketch3.addConstraint(Sketcher.Constraint("Equal", 6, 8))
sketch3.addConstraint(Sketcher.Constraint("Equal", 8, 9))
sketch3.addConstraint(Sketcher.Constraint("Equal", 11, 12))
sketch3.addConstraint(Sketcher.Constraint("Equal", 12, 14))
sketch3.addConstraint(Sketcher.Constraint("Equal", 14, 15))
sketch3.addConstraint(Sketcher.Constraint("Equal", 17, 18))
sketch3.addConstraint(Sketcher.Constraint("Equal", 18, 20))
sketch3.addConstraint(Sketcher.Constraint("Equal", 20, 21))
sketch3.addConstraint(Sketcher.Constraint("Equal", 23, 24))
sketch3.addConstraint(Sketcher.Constraint("Equal", 24, 26))
sketch3.addConstraint(Sketcher.Constraint("Equal", 26, 27))
sketch3.addConstraint(Sketcher.Constraint("Equal", 29, 30))
sketch3.addConstraint(Sketcher.Constraint("Equal", 30, 32))
sketch3.addConstraint(Sketcher.Constraint("Equal", 32, 33))
sketch3.addConstraint(Sketcher.Constraint("Equal", 35, 36))
sketch3.addConstraint(Sketcher.Constraint("Equal", 36, 38))
sketch3.addConstraint(Sketcher.Constraint("Equal", 38, 39))
sketch3.addConstraint(Sketcher.Constraint("Equal", 41, 42))
sketch3.addConstraint(Sketcher.Constraint("Equal", 42, 44))
sketch3.addConstraint(Sketcher.Constraint("Equal", 44, 45))
sketch3.addConstraint(Sketcher.Constraint("Equal", 47, 48))
sketch3.addConstraint(Sketcher.Constraint("Equal", 48, 50))
sketch3.addConstraint(Sketcher.Constraint("Equal", 50, 51))
sketch3.addConstraint(Sketcher.Constraint("Equal", 53, 54))
sketch3.addConstraint(Sketcher.Constraint("Equal", 54, 56))
sketch3.addConstraint(Sketcher.Constraint("Equal", 56, 57))
sketch3.addConstraint(Sketcher.Constraint("Equal", 59, 60))
sketch3.addConstraint(Sketcher.Constraint("Equal", 60, 62))
sketch3.addConstraint(Sketcher.Constraint("Equal", 62, 63))
sketch3.addConstraint(Sketcher.Constraint("Equal", 66, 67))
sketch3.addConstraint(Sketcher.Constraint("Equal", 67, 68))
sketch3.addConstraint(Sketcher.Constraint("Equal", 68, 69))
sketch3.addConstraint(Sketcher.Constraint("Horizontal", 17, 3, 18, 3))
sketch3.addConstraint(Sketcher.Constraint("Horizontal", 15, 3, 20, 3))
sketch3.addConstraint(Sketcher.Constraint("Horizontal", 9, 3, 30, 3))
sketch3.addConstraint(Sketcher.Constraint("Horizontal", 29, 3, 36, 3))
sketch3.addConstraint(Sketcher.Constraint("Horizontal", 27, 3, 38, 3))
sketch3.addConstraint(Sketcher.Constraint("Horizontal", 35, 3, 42, 3))
sketch3.addConstraint(Sketcher.Constraint("Horizontal", 33, 3, 44, 3))
sketch3.addConstraint(Sketcher.Constraint("Horizontal", 5, 3, 56, 3))
sketch3.addConstraint(Sketcher.Constraint("Horizontal", 41, 3, 66, 3))
sketch3.addConstraint(Sketcher.Constraint("Horizontal", 66, 3, 67, 3))
sketch3.addConstraint(Sketcher.Constraint("Horizontal", 68, 3, 69, 3))
sketch3.addConstraint(Sketcher.Constraint("Horizontal", 67, 3, 5, 2))
sketch3.addConstraint(Sketcher.Constraint("Horizontal", 3, 2, 26, 2))
sketch3.addConstraint(Sketcher.Constraint("Horizontal", 59, 3, 29, 2))
sketch3.addConstraint(Sketcher.Constraint("Horizontal", 39, 2, 56, 2))
sketch3.addConstraint(Sketcher.Constraint("Vertical", 67, 3, 68, 3))
sketch3.addConstraint(Sketcher.Constraint("Vertical", 66, 3, 69, 3))
sketch3.addConstraint(Sketcher.Constraint("Vertical", 5, 3, 2, 2))
sketch3.addConstraint(Sketcher.Constraint("Vertical", 2, 2, 5, 2))
sketch3.addConstraint(Sketcher.Constraint("Vertical", 11, 3, 8, 2))
sketch3.addConstraint(Sketcher.Constraint("Vertical", 8, 2, 11, 2))
sketch3.addConstraint(Sketcher.Constraint("Vertical", 17, 3, 14, 2))
sketch3.addConstraint(Sketcher.Constraint("Vertical", 14, 2, 17, 2))
sketch3.addConstraint(Sketcher.Constraint("Vertical", 23, 3, 20, 2))
sketch3.addConstraint(Sketcher.Constraint("Vertical", 20, 2, 23, 2))
sketch3.addConstraint(Sketcher.Constraint("Vertical", 29, 3, 26, 2))
sketch3.addConstraint(Sketcher.Constraint("Vertical", 26, 2, 29, 2))
sketch3.addConstraint(Sketcher.Constraint("Vertical", 35, 3, 32, 2))
sketch3.addConstraint(Sketcher.Constraint("Vertical", 32, 2, 35, 2))
sketch3.addConstraint(Sketcher.Constraint("Vertical", 41, 3, 38, 2))
sketch3.addConstraint(Sketcher.Constraint("Vertical", 38, 2, 41, 2))
sketch3.addConstraint(Sketcher.Constraint("Vertical", 47, 3, 44, 2))
sketch3.addConstraint(Sketcher.Constraint("Vertical", 44, 2, 47, 2))
sketch3.addConstraint(Sketcher.Constraint("Vertical", 53, 3, 50, 2))
sketch3.addConstraint(Sketcher.Constraint("Vertical", 50, 2, 53, 2))
sketch3.addConstraint(Sketcher.Constraint("Vertical", 59, 3, 56, 2))
sketch3.addConstraint(Sketcher.Constraint("Vertical", 56, 2, 59, 2))
sketch3.addConstraint(Sketcher.Constraint("Vertical", 65, 3, 62, 2))
sketch3.addConstraint(Sketcher.Constraint("Vertical", 62, 2, 65, 2))
sketch3.addConstraint(Sketcher.Constraint("Equal", 4, 7))
sketch3.addConstraint(Sketcher.Constraint("Equal", 10, 13))
sketch3.addConstraint(Sketcher.Constraint("Equal", 28, 31))
sketch3.addConstraint(Sketcher.Constraint("Equal", 46, 49))
sketch3.addConstraint(Sketcher.Constraint("Diameter", 66, Q("1 in")))
sketch3.addConstraint(Sketcher.Constraint("Radius", 0, Q("0.25 in")))
sketch3.addConstraint(Sketcher.Constraint("DistanceY", 61, 2, 61, 1, Q("0.625 in")))
sketch3.addConstraint(Sketcher.Constraint("DistanceX", 0, 3, -1, 1, Q("689.785871 mm")))
sketch3.addConstraint(Sketcher.Constraint("DistanceY", -1, 1, 0, 3, Q("5.251218 mm")))
sketch3.addConstraint(Sketcher.Constraint("DistanceX", 6, 3, -1, 1, Q("537.385871 mm")))
sketch3.addConstraint(Sketcher.Constraint("DistanceY", -1, 1, 6, 3, Q("8.426218 mm")))
sketch3.addConstraint(Sketcher.Constraint("DistanceX", 12, 3, -1, 1, Q("296.085871 mm")))
sketch3.addConstraint(Sketcher.Constraint("DistanceY", -1, 1, 12, 3, Q("15.030218 mm")))
sketch3.addConstraint(Sketcher.Constraint("DistanceX", 18, 3, -1, 1, Q("242.110871 mm")))
sketch3.addConstraint(Sketcher.Constraint("DistanceX", 24, 3, -1, 1, Q("89.710871 mm")))
sketch3.addConstraint(Sketcher.Constraint("DistanceX", -1, 1, 30, 3, Q("38.876629 mm")))
sketch3.addConstraint(Sketcher.Constraint("DistanceX", -1, 1, 36, 3, Q("69.039129 mm")))
sketch3.addConstraint(Sketcher.Constraint("DistanceX", -1, 1, 42, 3, Q("229.376629 mm")))
sketch3.addConstraint(Sketcher.Constraint("DistanceX", -1, 1, 48, 3, Q("386.539129 mm")))
sketch3.addConstraint(Sketcher.Constraint("DistanceY", -1, 1, 48, 3, Q("16.363718 mm")))
sketch3.addConstraint(Sketcher.Constraint("DistanceX", -1, 1, 54, 3, Q("480.201629 mm")))
sketch3.addConstraint(Sketcher.Constraint("DistanceX", -1, 1, 60, 3, Q("605.614129 mm")))
sketch3.addConstraint(Sketcher.Constraint("DistanceY", 60, 3, -1, 1, Q("0.781282 mm")))
sketch3.addConstraint(Sketcher.Constraint("DistanceX", -1, 1, 66, 3, Q("167.464129 mm")))
sketch3.addConstraint(Sketcher.Constraint("DistanceX", -1, 1, 67, 3, Q("291.289129 mm")))
sketch3.addConstraint(Sketcher.Constraint("DistanceY", 68, 3, -1, 1, Q("39.198782 mm")))
pocket2 = body.newObject("PartDesign::Pocket", "Pocket001")
pocket2.Profile = sketch3
pocket2.Type = "ThroughAll"

doc.recompute()
